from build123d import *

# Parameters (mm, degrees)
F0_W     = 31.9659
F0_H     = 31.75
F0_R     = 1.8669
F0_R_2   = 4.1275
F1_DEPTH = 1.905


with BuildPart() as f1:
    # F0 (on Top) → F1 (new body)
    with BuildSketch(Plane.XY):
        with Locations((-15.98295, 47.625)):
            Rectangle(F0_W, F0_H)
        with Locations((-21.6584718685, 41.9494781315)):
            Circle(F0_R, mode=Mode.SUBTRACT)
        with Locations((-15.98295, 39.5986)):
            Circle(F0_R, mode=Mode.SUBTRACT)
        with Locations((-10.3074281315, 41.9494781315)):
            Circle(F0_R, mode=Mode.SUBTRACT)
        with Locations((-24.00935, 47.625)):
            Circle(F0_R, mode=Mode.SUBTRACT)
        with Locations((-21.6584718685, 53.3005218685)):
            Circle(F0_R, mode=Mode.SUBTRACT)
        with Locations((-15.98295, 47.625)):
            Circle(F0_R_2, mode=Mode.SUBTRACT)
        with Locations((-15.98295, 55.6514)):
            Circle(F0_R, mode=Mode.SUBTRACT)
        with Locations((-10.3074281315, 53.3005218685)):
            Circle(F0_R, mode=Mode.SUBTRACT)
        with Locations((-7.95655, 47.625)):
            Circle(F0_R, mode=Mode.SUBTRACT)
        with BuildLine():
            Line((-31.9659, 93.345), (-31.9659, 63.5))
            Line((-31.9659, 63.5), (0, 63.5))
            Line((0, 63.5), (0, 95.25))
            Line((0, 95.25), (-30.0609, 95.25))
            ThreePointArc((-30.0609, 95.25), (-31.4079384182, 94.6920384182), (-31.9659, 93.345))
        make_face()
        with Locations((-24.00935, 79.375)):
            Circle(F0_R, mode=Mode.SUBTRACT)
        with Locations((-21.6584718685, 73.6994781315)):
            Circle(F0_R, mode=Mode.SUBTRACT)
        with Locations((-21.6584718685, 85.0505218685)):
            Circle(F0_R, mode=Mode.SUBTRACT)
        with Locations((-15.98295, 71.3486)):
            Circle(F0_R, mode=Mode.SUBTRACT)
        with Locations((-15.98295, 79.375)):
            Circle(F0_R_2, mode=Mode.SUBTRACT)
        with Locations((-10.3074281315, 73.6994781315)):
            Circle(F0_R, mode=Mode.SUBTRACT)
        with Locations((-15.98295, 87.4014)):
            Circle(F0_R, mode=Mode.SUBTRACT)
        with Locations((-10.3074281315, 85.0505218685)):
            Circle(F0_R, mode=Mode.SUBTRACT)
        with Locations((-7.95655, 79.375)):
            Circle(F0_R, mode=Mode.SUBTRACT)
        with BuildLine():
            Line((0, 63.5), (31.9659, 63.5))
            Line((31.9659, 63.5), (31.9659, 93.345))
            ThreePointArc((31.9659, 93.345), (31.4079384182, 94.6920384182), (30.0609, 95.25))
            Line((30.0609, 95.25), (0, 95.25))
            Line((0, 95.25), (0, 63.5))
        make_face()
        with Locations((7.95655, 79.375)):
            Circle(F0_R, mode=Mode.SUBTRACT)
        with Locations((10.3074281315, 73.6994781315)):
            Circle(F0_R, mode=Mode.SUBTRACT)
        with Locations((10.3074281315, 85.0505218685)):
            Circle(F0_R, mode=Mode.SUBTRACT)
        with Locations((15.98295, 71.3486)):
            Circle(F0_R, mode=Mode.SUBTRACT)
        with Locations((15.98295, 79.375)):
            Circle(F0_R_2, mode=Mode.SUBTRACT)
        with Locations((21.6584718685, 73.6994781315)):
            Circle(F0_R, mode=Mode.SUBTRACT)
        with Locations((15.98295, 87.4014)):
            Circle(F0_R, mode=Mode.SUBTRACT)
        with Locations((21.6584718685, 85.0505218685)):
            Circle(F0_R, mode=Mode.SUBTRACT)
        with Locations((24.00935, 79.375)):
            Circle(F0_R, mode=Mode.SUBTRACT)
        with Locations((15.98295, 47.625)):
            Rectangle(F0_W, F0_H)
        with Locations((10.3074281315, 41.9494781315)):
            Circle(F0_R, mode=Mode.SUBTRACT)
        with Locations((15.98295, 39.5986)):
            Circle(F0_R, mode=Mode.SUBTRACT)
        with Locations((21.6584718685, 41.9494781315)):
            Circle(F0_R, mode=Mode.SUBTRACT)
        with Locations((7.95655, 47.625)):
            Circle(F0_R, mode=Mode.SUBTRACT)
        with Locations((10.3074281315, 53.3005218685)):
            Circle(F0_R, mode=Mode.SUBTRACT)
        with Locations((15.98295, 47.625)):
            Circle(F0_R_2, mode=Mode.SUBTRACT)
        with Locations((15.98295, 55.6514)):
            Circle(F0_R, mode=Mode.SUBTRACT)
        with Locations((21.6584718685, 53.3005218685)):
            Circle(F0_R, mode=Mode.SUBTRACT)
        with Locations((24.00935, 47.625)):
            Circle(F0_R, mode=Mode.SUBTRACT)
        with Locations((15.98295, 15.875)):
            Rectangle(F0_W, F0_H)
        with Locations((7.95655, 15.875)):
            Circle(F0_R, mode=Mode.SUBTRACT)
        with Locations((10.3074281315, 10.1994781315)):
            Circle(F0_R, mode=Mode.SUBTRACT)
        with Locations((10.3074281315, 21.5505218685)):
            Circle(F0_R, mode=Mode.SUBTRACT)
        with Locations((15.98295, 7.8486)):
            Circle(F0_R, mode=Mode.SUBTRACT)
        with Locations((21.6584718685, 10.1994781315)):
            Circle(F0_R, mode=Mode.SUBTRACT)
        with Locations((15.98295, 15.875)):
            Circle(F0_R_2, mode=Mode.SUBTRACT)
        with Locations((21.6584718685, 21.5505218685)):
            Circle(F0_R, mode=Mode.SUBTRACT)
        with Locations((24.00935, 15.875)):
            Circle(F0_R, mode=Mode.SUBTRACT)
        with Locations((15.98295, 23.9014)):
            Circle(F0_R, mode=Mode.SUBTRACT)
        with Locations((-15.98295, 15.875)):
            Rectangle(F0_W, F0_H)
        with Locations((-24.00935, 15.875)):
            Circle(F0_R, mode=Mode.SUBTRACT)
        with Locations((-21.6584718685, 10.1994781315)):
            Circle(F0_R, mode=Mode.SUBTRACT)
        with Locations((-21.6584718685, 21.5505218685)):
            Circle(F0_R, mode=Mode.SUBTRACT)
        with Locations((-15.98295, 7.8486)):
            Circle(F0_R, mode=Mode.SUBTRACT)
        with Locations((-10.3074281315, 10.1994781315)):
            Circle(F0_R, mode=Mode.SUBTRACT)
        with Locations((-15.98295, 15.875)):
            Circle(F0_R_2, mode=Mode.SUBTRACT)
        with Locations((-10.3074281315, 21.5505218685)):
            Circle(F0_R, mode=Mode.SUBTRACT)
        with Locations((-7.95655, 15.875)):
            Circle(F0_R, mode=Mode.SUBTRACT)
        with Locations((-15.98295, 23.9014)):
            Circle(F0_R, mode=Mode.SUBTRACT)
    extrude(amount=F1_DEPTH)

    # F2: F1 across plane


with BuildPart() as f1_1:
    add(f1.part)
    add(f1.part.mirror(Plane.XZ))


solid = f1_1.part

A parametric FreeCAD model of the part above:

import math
import FreeCAD as App
import Part
import Sketcher

V = App.Vector
Q = App.Units.Quantity

doc = App.newDocument("Part")
params = doc.addObject("Spreadsheet::Sheet", "Params")
for row, (alias, value) in enumerate([
    ("sketch1_diameter", "0.147 in"),
    ("sketch1_diameter2", "0.325 in"),
    ("sketch1_radius", "0.075 in"),
    ("sketch1_width", "2.517 in"),
    ("sketch1_height", "3.675 in"),
    ("pad1_length", "0.075 in"),
], start=1):
    params.set(f"A{row}", alias)
    params.set(f"B{row}", "=" + value)
    params.setAlias(f"B{row}", alias)

body = doc.addObject("PartDesign::Body", "Body")

# Sketch on XY plane
sketch1 = body.newObject("Sketcher::SketchObject", "Sketch")
sketch1.AttachmentSupport = (doc.getObject("XY_Plane"), [""])
sketch1.MapMode = "FlatFace"
sketch1.addGeometry([
    Part.LineSegment(V(-32, 93.3, 0), V(-32, 0, 0)),  # 0
    Part.LineSegment(V(-32, 0, 0), V(32, 0, 0)),  # 1
    Part.LineSegment(V(32, 0, 0), V(32, 93.3, 0)),  # 2
    Part.ArcOfCircle(Part.Circle(V(30.1, 93.3, 0), V(0, 0, 1), 1.9), math.radians(0), math.radians(90)),  # 3
    Part.LineSegment(V(30.1, 95.2, 0), V(-30.1, 95.2, 0)),  # 4
    Part.ArcOfCircle(Part.Circle(V(-30.1, 93.3, 0), V(0, 0, 1), 1.9), math.radians(90), math.radians(180)),  # 5
    Part.Circle(V(-21.7, 10.2, 0), V(0, 0, 1), 1.9),  # 6
    Part.Circle(V(-24, 15.9, 0), V(0, 0, 1), 1.9),  # 7
    Part.Circle(V(-16, 7.8, 0), V(0, 0, 1), 1.9),  # 8
    Part.Circle(V(-16, 15.9, 0), V(0, 0, 1), 4.1),  # 9
    Part.Circle(V(-21.7, 21.6, 0), V(0, 0, 1), 1.9),  # 10
    Part.Circle(V(-16, 23.9, 0), V(0, 0, 1), 1.9),  # 11
    Part.Circle(V(-10.3, 10.2, 0), V(0, 0, 1), 1.9),  # 12
    Part.Circle(V(-8, 15.9, 0), V(0, 0, 1), 1.9),  # 13
    Part.Circle(V(-10.3, 21.6, 0), V(0, 0, 1), 1.9),  # 14
    Part.Circle(V(-21.7, 41.9, 0), V(0, 0, 1), 1.9),  # 15
    Part.Circle(V(-16, 39.6, 0), V(0, 0, 1), 1.9),  # 16
    Part.Circle(V(-10.3, 41.9, 0), V(0, 0, 1), 1.9),  # 17
    Part.Circle(V(10.3, 10.2, 0), V(0, 0, 1), 1.9),  # 18
    Part.Circle(V(8, 15.9, 0), V(0, 0, 1), 1.9),  # 19
    Part.Circle(V(10.3, 21.6, 0), V(0, 0, 1), 1.9),  # 20
    Part.Circle(V(16, 7.8, 0), V(0, 0, 1), 1.9),  # 21
    Part.Circle(V(16, 15.9, 0), V(0, 0, 1), 4.1),  # 22
    Part.Circle(V(21.7, 10.2, 0), V(0, 0, 1), 1.9),  # 23
    Part.Circle(V(24, 15.9, 0), V(0, 0, 1), 1.9),  # 24
    Part.Circle(V(16, 23.9, 0), V(0, 0, 1), 1.9),  # 25
    Part.Circle(V(21.7, 21.6, 0), V(0, 0, 1), 1.9),  # 26
    Part.Circle(V(10.3, 41.9, 0), V(0, 0, 1), 1.9),  # 27
    Part.Circle(V(16, 39.6, 0), V(0, 0, 1), 1.9),  # 28
    Part.Circle(V(21.7, 41.9, 0), V(0, 0, 1), 1.9),  # 29
    Part.Circle(V(-24, 47.6, 0), V(0, 0, 1), 1.9),  # 30
    Part.Circle(V(-21.7, 53.3, 0), V(0, 0, 1), 1.9),  # 31
    Part.Circle(V(-16, 47.6, 0), V(0, 0, 1), 4.1),  # 32
    Part.Circle(V(-16, 55.7, 0), V(0, 0, 1), 1.9),  # 33
    Part.Circle(V(-8, 47.6, 0), V(0, 0, 1), 1.9),  # 34
    Part.Circle(V(-10.3, 53.3, 0), V(0, 0, 1), 1.9),  # 35
    Part.Circle(V(-21.7, 73.7, 0), V(0, 0, 1), 1.9),  # 36
    Part.Circle(V(-16, 71.3, 0), V(0, 0, 1), 1.9),  # 37
    Part.Circle(V(-24, 79.4, 0), V(0, 0, 1), 1.9),  # 38
    Part.Circle(V(-21.7, 85.1, 0), V(0, 0, 1), 1.9),  # 39
    Part.Circle(V(-16, 79.4, 0), V(0, 0, 1), 4.1),  # 40
    Part.Circle(V(-16, 87.4, 0), V(0, 0, 1), 1.9),  # 41
    Part.Circle(V(-10.3, 73.7, 0), V(0, 0, 1), 1.9),  # 42
    Part.Circle(V(-8, 79.4, 0), V(0, 0, 1), 1.9),  # 43
    Part.Circle(V(-10.3, 85.1, 0), V(0, 0, 1), 1.9),  # 44
    Part.Circle(V(8, 47.6, 0), V(0, 0, 1), 1.9),  # 45
    Part.Circle(V(10.3, 53.3, 0), V(0, 0, 1), 1.9),  # 46
    Part.Circle(V(16, 47.6, 0), V(0, 0, 1), 4.1),  # 47
    Part.Circle(V(16, 55.7, 0), V(0, 0, 1), 1.9),  # 48
    Part.Circle(V(24, 47.6, 0), V(0, 0, 1), 1.9),  # 49
    Part.Circle(V(21.7, 53.3, 0), V(0, 0, 1), 1.9),  # 50
    Part.Circle(V(10.3, 73.7, 0), V(0, 0, 1), 1.9),  # 51
    Part.Circle(V(8, 79.4, 0), V(0, 0, 1), 1.9),  # 52
    Part.Circle(V(10.3, 85.1, 0), V(0, 0, 1), 1.9),  # 53
    Part.Circle(V(16, 71.3, 0), V(0, 0, 1), 1.9),  # 54
    Part.Circle(V(21.7, 73.7, 0), V(0, 0, 1), 1.9),  # 55
    Part.Circle(V(16, 79.4, 0), V(0, 0, 1), 4.1),  # 56
    Part.Circle(V(16, 87.4, 0), V(0, 0, 1), 1.9),  # 57
    Part.Circle(V(24, 79.4, 0), V(0, 0, 1), 1.9),  # 58
    Part.Circle(V(21.7, 85.1, 0), V(0, 0, 1), 1.9),  # 59
], False)
sketch1.addConstraint([
    Sketcher.Constraint("Coincident", 0, 2, 1, 1),
    Sketcher.Constraint("Coincident", 1, 2, 2, 1),
    Sketcher.Constraint("Tangent", 2, 2, 3, 1),
    Sketcher.Constraint("Tangent", 3, 2, 4, 1),
    Sketcher.Constraint("Tangent", 4, 2, 5, 1),
    Sketcher.Constraint("Tangent", 5, 2, 0, 1),
    Sketcher.Constraint("Vertical", 0),
    Sketcher.Constraint("Horizontal", 1),
    Sketcher.Constraint("Vertical", 2),
    Sketcher.Constraint("Horizontal", 4),
    Sketcher.Constraint("Equal", 3, 5),
    Sketcher.Constraint("Equal", 6, 7),
    Sketcher.Constraint("Equal", 7, 8),
    Sketcher.Constraint("Equal", 8, 10),
    Sketcher.Constraint("Equal", 10, 11),
    Sketcher.Constraint("Equal", 11, 12),
    Sketcher.Constraint("Equal", 12, 13),
    Sketcher.Constraint("Equal", 13, 14),
    Sketcher.Constraint("Equal", 14, 15),
    Sketcher.Constraint("Equal", 15, 16),
    Sketcher.Constraint("Equal", 16, 17),
    Sketcher.Constraint("Equal", 17, 18),
    Sketcher.Constraint("Equal", 18, 19),
    Sketcher.Constraint("Equal", 19, 20),
    Sketcher.Constraint("Equal", 20, 21),
    Sketcher.Constraint("Equal", 9, 22),
    Sketcher.Constraint("Equal", 21, 23),
    Sketcher.Constraint("Equal", 23, 24),
    Sketcher.Constraint("Equal", 24, 25),
    Sketcher.Constraint("Equal", 25, 26),
    Sketcher.Constraint("Equal", 26, 27),
    Sketcher.Constraint("Equal", 27, 28),
    Sketcher.Constraint("Equal", 28, 29),
    Sketcher.Constraint("Equal", 29, 30),
    Sketcher.Constraint("Equal", 30, 31),
    Sketcher.Constraint("Equal", 22, 32),
    Sketcher.Constraint("Equal", 31, 33),
    Sketcher.Constraint("Equal", 33, 34),
    Sketcher.Constraint("Equal", 34, 35),
    Sketcher.Constraint("Equal", 35, 36),
    Sketcher.Constraint("Equal", 36, 37),
    Sketcher.Constraint("Equal", 37, 38),
    Sketcher.Constraint("Equal", 38, 39),
    Sketcher.Constraint("Equal", 32, 40),
    Sketcher.Constraint("Equal", 39, 41),
    Sketcher.Constraint("Equal", 41, 42),
    Sketcher.Constraint("Equal", 42, 43),
    Sketcher.Constraint("Equal", 43, 44),
    Sketcher.Constraint("Equal", 44, 45),
    Sketcher.Constraint("Equal", 45, 46),
    Sketcher.Constraint("Equal", 40, 47),
    Sketcher.Constraint("Equal", 46, 48),
    Sketcher.Constraint("Equal", 48, 49),
    Sketcher.Constraint("Equal", 49, 50),
    Sketcher.Constraint("Equal", 50, 51),
    Sketcher.Constraint("Equal", 51, 52),
    Sketcher.Constraint("Equal", 52, 53),
    Sketcher.Constraint("Equal", 53, 54),
    Sketcher.Constraint("Equal", 54, 55),
    Sketcher.Constraint("Equal", 47, 56),
    Sketcher.Constraint("Equal", 55, 57),
    Sketcher.Constraint("Equal", 57, 58),
    Sketcher.Constraint("Equal", 58, 59),
    Sketcher.Constraint("Symmetric", 0, 2, 1, 2, -1, 1),
    Sketcher.Constraint("Symmetric", 12, 3, 18, 3, -2),
    Sketcher.Constraint("Symmetric", 13, 3, 19, 3, -2),
    Sketcher.Constraint("Symmetric", 14, 3, 20, 3, -2),
    Sketcher.Constraint("Symmetric", 8, 3, 21, 3, -2),
    Sketcher.Constraint("Symmetric", 9, 3, 22, 3, -2),
    Sketcher.Constraint("Symmetric", 6, 3, 23, 3, -2),
    Sketcher.Constraint("Symmetric", 7, 3, 24, 3, -2),
    Sketcher.Constraint("Symmetric", 11, 3, 25, 3, -2),
    Sketcher.Constraint("Symmetric", 10, 3, 26, 3, -2),
    Sketcher.Constraint("Symmetric", 17, 3, 27, 3, -2),
    Sketcher.Constraint("Symmetric", 16, 3, 28, 3, -2),
    Sketcher.Constraint("Symmetric", 15, 3, 29, 3, -2),
    Sketcher.Constraint("Symmetric", 34, 3, 45, 3, -2),
    Sketcher.Constraint("Symmetric", 35, 3, 46, 3, -2),
    Sketcher.Constraint("Symmetric", 32, 3, 47, 3, -2),
    Sketcher.Constraint("Symmetric", 33, 3, 48, 3, -2),
    Sketcher.Constraint("Symmetric", 30, 3, 49, 3, -2),
    Sketcher.Constraint("Symmetric", 31, 3, 50, 3, -2),
    Sketcher.Constraint("Symmetric", 42, 3, 51, 3, -2),
    Sketcher.Constraint("Symmetric", 43, 3, 52, 3, -2),
    Sketcher.Constraint("Symmetric", 44, 3, 53, 3, -2),
    Sketcher.Constraint("Symmetric", 37, 3, 54, 3, -2),
    Sketcher.Constraint("Symmetric", 36, 3, 55, 3, -2),
    Sketcher.Constraint("Symmetric", 40, 3, 56, 3, -2),
    Sketcher.Constraint("Symmetric", 41, 3, 57, 3, -2),
    Sketcher.Constraint("Symmetric", 38, 3, 58, 3, -2),
    Sketcher.Constraint("Symmetric", 39, 3, 59, 3, -2),
    Sketcher.Constraint("Horizontal", 7, 3, 9, 3),
    Sketcher.Constraint("Horizontal", 6, 3, 12, 3),
    Sketcher.Constraint("Horizontal", 9, 3, 13, 3),
    Sketcher.Constraint("Horizontal", 10, 3, 14, 3),
    Sketcher.Constraint("Horizontal", 15, 3, 17, 3),
    Sketcher.Constraint("Horizontal", 30, 3, 32, 3),
    Sketcher.Constraint("Horizontal", 32, 3, 34, 3),
    Sketcher.Constraint("Horizontal", 31, 3, 35, 3),
    Sketcher.Constraint("Horizontal", 38, 3, 40, 3),
    Sketcher.Constraint("Horizontal", 36, 3, 42, 3),
    Sketcher.Constraint("Horizontal", 40, 3, 43, 3),
    Sketcher.Constraint("Horizontal", 39, 3, 44, 3),
    Sketcher.Constraint("Vertical", 8, 3, 9, 3),
    Sketcher.Constraint("Vertical", 6, 3, 10, 3),
    Sketcher.Constraint("Vertical", 9, 3, 11, 3),
    Sketcher.Constraint("Vertical", 12, 3, 14, 3),
    Sketcher.Constraint("Vertical", 10, 3, 15, 3),
    Sketcher.Constraint("Vertical", 11, 3, 16, 3),
    Sketcher.Constraint("Vertical", 14, 3, 17, 3),
    Sketcher.Constraint("Vertical", 7, 3, 30, 3),
    Sketcher.Constraint("Vertical", 15, 3, 31, 3),
    Sketcher.Constraint("Vertical", 16, 3, 32, 3),
    Sketcher.Constraint("Vertical", 32, 3, 33, 3),
    Sketcher.Constraint("Vertical", 13, 3, 34, 3),
    Sketcher.Constraint("Vertical", 17, 3, 35, 3),
    Sketcher.Constraint("Vertical", 31, 3, 36, 3),
    Sketcher.Constraint("Vertical", 33, 3, 37, 3),
    Sketcher.Constraint("Vertical", 30, 3, 38, 3),
    Sketcher.Constraint("Vertical", 36, 3, 39, 3),
    Sketcher.Constraint("Vertical", 37, 3, 40, 3),
    Sketcher.Constraint("Vertical", 40, 3, 41, 3),
    Sketcher.Constraint("Vertical", 35, 3, 42, 3),
    Sketcher.Constraint("Vertical", 34, 3, 43, 3),
    Sketcher.Constraint("Vertical", 42, 3, 44, 3),
    Sketcher.Constraint("Diameter", 6, Q("0.147 in")),
    Sketcher.Constraint("Diameter", 9, Q("0.325 in")),
    Sketcher.Constraint("Radius", 3, Q("0.075 in")),
    Sketcher.Constraint("DistanceX", 1, 1, 1, 2, Q("2.517 in")),
    Sketcher.Constraint("DistanceY", 0, 2, 0, 1, Q("3.675 in")),
    Sketcher.Constraint("DistanceY", -1, 1, 7, 3, Q("0.625 in")),
    Sketcher.Constraint("DistanceY", -1, 1, 8, 3, Q("0.309 in")),
    Sketcher.Constraint("DistanceY", -1, 1, 11, 3, Q("0.941 in")),
    Sketcher.Constraint("DistanceY", -1, 1, 16, 3, Q("1.559 in")),
    Sketcher.Constraint("DistanceY", -1, 1, 30, 3, Q("1.875 in")),
    Sketcher.Constraint("DistanceY", -1, 1, 33, 3, Q("2.191 in")),
    Sketcher.Constraint("DistanceY", -1, 1, 37, 3, Q("2.809 in")),
    Sketcher.Constraint("DistanceY", -1, 1, 38, 3, Q("3.125 in")),
    Sketcher.Constraint("DistanceY", -1, 1, 41, 3, Q("3.441 in")),
    Sketcher.Constraint("DistanceX", 6, 3, -1, 1, Q("21.658472 mm")),
    Sketcher.Constraint("DistanceY", -1, 1, 6, 3, Q("10.199478 mm")),
    Sketcher.Constraint("DistanceX", 7, 3, -1, 1, Q("24.00935 mm")),
    Sketcher.Constraint("DistanceX", 8, 3, -1, 1, Q("15.98295 mm")),
    Sketcher.Constraint("DistanceY", -1, 1, 10, 3, Q("21.550522 mm")),
    Sketcher.Constraint("DistanceX", 12, 3, -1, 1, Q("10.307428 mm")),
    Sketcher.Constraint("DistanceX", 13, 3, -1, 1, Q("7.95655 mm")),
    Sketcher.Constraint("DistanceY", -1, 1, 15, 3, Q("41.949478 mm")),
    Sketcher.Constraint("DistanceY", -1, 1, 31, 3, Q("53.300522 mm")),
    Sketcher.Constraint("DistanceY", -1, 1, 36, 3, Q("73.699478 mm")),
    Sketcher.Constraint("DistanceY", -1, 1, 39, 3, Q("85.050522 mm")),
])
sketch1.setExpression("Constraints[125]", "Params.sketch1_diameter")
sketch1.setExpression("Constraints[126]", "Params.sketch1_diameter2")
sketch1.setExpression("Constraints[127]", "Params.sketch1_radius")
sketch1.setExpression("Constraints[128]", "Params.sketch1_width")
sketch1.setExpression("Constraints[129]", "Params.sketch1_height")
pad1 = body.newObject("PartDesign::Pad", "Pad")
pad1.Profile = sketch1
pad1.setExpression("Length", "Params.pad1_length")
body2 = doc.addObject("PartDesign::Body", "Body001")
doc.recompute()

body2.BaseFeature = body
doc.recompute()

mirroring = doc.addObject("Part::Mirroring", "Mirroring")
mirroring.Source = body
mirroring.Base = V(0, 0, 0)
mirroring.Normal = V(0, -1, 0)
body3 = doc.addObject("PartDesign::Body", "Body002")
body3.BaseFeature = mirroring
boolean = body2.newObject("PartDesign::Boolean", "Boolean")
boolean.Type = "Fuse"
boolean.addObjects([body3])
doc.recompute()
mirroring.Visibility = False

doc.recompute()
